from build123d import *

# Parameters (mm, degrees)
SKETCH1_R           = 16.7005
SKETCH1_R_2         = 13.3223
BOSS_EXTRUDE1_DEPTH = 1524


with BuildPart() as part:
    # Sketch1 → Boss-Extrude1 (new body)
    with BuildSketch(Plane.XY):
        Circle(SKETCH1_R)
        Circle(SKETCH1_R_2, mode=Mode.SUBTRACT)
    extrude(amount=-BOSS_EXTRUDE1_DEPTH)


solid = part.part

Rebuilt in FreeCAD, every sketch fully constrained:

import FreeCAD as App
import Part
import Sketcher
from FreeCAD import Vector
Q = App.Units.Quantity

doc = App.newDocument("Part")
body = doc.addObject("PartDesign::Body", "Body")

sketch1 = body.newObject("Sketcher::SketchObject", "Sketch")
sketch1.AttachmentSupport = (doc.getObject("XY_Plane"), [""])
sketch1.MapMode = "FlatFace"
sketch1.addGeometry([
    Part.Circle(Vector(0, 0, 0), Vector(0, 0, 1), 17),
    Part.Circle(Vector(0, 0, 0), Vector(0, 0, 1), 13),
], False)
sketch1.addConstraint([
    Sketcher.Constraint("Coincident", 0, 3, -1, 1),
    Sketcher.Constraint("Coincident", 1, 3, -1, 1),
    Sketcher.Constraint("Diameter", 0, Q("1.315 in")),
    Sketcher.Constraint("Diameter", 1, Q("1.049 in")),
])
pad1 = body.newObject("PartDesign::Pad", "Pad")
pad1.Profile = sketch1
pad1.Length = Q("60 in")
pad1.Reversed = True

doc.recompute()
